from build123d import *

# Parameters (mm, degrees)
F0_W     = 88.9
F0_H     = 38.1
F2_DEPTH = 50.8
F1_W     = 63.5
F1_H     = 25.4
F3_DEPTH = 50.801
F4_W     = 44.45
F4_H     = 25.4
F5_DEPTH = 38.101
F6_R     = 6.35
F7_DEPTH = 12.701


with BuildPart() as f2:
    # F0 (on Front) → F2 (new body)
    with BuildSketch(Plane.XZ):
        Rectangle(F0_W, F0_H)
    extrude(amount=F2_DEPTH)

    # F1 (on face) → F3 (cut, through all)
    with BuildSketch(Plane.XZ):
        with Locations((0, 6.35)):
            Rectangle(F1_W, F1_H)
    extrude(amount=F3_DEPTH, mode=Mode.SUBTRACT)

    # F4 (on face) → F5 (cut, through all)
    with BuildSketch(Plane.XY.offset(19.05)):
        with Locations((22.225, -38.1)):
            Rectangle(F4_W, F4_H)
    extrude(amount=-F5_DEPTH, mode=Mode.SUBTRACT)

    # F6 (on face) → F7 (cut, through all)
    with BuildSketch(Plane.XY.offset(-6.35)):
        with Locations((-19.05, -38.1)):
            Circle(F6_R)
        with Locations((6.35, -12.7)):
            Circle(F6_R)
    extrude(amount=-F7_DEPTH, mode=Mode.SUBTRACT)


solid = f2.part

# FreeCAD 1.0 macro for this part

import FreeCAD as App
import Part
import Sketcher
Q = App.Units.Quantity


def add_polygon(sketch, points):
    """Adds a closed chain of lines whose ends are joined by coincident constraints."""
    first, n = sketch.GeometryCount, len(points)
    for a, b in zip(points, points[1:] + points[:1]):
        sketch.addGeometry(Part.LineSegment(App.Vector(*a, 0), App.Vector(*b, 0)), False)
    for i in range(n):
        sketch.addConstraint(Sketcher.Constraint("Coincident", first + i, 2, first + (i + 1) % n, 1))

doc = App.newDocument("Part")
body = doc.addObject("PartDesign::Body", "Body")

sketch1 = body.newObject("Sketcher::SketchObject", "Sketch")
sketch1.AttachmentSupport = (doc.getObject("XZ_Plane"), [""])
sketch1.MapMode = "FlatFace"
add_polygon(sketch1, [(-44, 19), (-44, -19), (44, -19), (44, 19)])
sketch1.addConstraint(Sketcher.Constraint("Vertical", 0))
sketch1.addConstraint(Sketcher.Constraint("Horizontal", 1))
sketch1.addConstraint(Sketcher.Constraint("Vertical", 2))
sketch1.addConstraint(Sketcher.Constraint("Horizontal", 3))
sketch1.addConstraint(Sketcher.Constraint("Symmetric", 0, 2, 2, 2, -1, 1))
sketch1.addConstraint(Sketcher.Constraint("DistanceX", 1, 1, 1, 2, Q("3.5 in")))
sketch1.addConstraint(Sketcher.Constraint("DistanceY", 0, 2, 0, 1, Q("1.5 in")))
pad1 = body.newObject("PartDesign::Pad", "Pad")
pad1.Profile = sketch1
pad1.Length = Q("2 in")

sketch2 = body.newObject("Sketcher::SketchObject", "Sketch001")
sketch2.AttachmentSupport = (doc.getObject("XZ_Plane"), [""])
sketch2.MapMode = "FlatFace"
add_polygon(sketch2, [(-32, 19), (-32, -6), (32, -6), (32, 19)])
sketch2.addConstraint(Sketcher.Constraint("Vertical", 0))
sketch2.addConstraint(Sketcher.Constraint("Horizontal", 1))
sketch2.addConstraint(Sketcher.Constraint("Vertical", 2))
sketch2.addConstraint(Sketcher.Constraint("Horizontal", 3))
sketch2.addConstraint(Sketcher.Constraint("DistanceY", 0, 2, 0, 1, Q("1 in")))
sketch2.addConstraint(Sketcher.Constraint("DistanceX", 1, 1, 1, 2, Q("2.5 in")))
sketch2.addConstraint(Sketcher.Constraint("DistanceX", 0, 2, -1, 1, Q("1.25 in")))
sketch2.addConstraint(Sketcher.Constraint("DistanceY", 0, 2, -1, 1, Q("0.25 in")))
pocket1 = body.newObject("PartDesign::Pocket", "Pocket")
pocket1.Profile = sketch2
pocket1.Type = "ThroughAll"
pocket1.Reversed = True

sketch3 = body.newObject("Sketcher::SketchObject", "Sketch002")
sketch3.AttachmentSupport = (doc.getObject("XY_Plane"), [""])
sketch3.MapMode = "FlatFace"
sketch3.AttachmentOffset = App.Placement(App.Vector(0, 0, 0.75 * 25.4), App.Rotation())
add_polygon(sketch3, [(0, -25), (0, -51), (44, -51), (44, -25)])
sketch3.addConstraint(Sketcher.Constraint("Vertical", 0))
sketch3.addConstraint(Sketcher.Constraint("Horizontal", 1))
sketch3.addConstraint(Sketcher.Constraint("Vertical", 2))
sketch3.addConstraint(Sketcher.Constraint("Horizontal", 3))
sketch3.addConstraint(Sketcher.Constraint("PointOnObject", 0, 2, -2))
sketch3.addConstraint(Sketcher.Constraint("DistanceY", 0, 2, 0, 1, Q("1 in")))
sketch3.addConstraint(Sketcher.Constraint("DistanceY", 0, 2, -1, 1, Q("2 in")))
sketch3.addConstraint(Sketcher.Constraint("DistanceX", 1, 1, 1, 2, Q("1.75 in")))
pocket2 = body.newObject("PartDesign::Pocket", "Pocket001")
pocket2.Profile = sketch3
pocket2.Type = "ThroughAll"

sketch4 = body.newObject("Sketcher::SketchObject", "Sketch003")
sketch4.AttachmentSupport = (doc.getObject("XY_Plane"), [""])
sketch4.MapMode = "FlatFace"
sketch4.AttachmentOffset = App.Placement(App.Vector(0, 0, -0.25 * 25.4), App.Rotation())
sketch4.addGeometry(Part.Circle(App.Vector(-19, -38, 0), App.Vector(0, 0, 1), 6), False)
sketch4.addGeometry(Part.Circle(App.Vector(6, -13, 0), App.Vector(0, 0, 1), 6), False)
sketch4.addConstraint(Sketcher.Constraint("Equal", 0, 1))
sketch4.addConstraint(Sketcher.Constraint("Diameter", 0, Q("0.5 in")))
sketch4.addConstraint(Sketcher.Constraint("DistanceX", 0, 3, 1, 3, Q("1 in")))
sketch4.addConstraint(Sketcher.Constraint("DistanceY", 0, 3, 1, 3, Q("1 in")))
sketch4.addConstraint(Sketcher.Constraint("DistanceY", 0, 3, -1, 1, Q("1.5 in")))
sketch4.addConstraint(Sketcher.Constraint("DistanceX", 0, 3, -1, 1, Q("0.75 in")))
pocket3 = body.newObject("PartDesign::Pocket", "Pocket002")
pocket3.Profile = sketch4
pocket3.Type = "ThroughAll"

doc.recompute()
